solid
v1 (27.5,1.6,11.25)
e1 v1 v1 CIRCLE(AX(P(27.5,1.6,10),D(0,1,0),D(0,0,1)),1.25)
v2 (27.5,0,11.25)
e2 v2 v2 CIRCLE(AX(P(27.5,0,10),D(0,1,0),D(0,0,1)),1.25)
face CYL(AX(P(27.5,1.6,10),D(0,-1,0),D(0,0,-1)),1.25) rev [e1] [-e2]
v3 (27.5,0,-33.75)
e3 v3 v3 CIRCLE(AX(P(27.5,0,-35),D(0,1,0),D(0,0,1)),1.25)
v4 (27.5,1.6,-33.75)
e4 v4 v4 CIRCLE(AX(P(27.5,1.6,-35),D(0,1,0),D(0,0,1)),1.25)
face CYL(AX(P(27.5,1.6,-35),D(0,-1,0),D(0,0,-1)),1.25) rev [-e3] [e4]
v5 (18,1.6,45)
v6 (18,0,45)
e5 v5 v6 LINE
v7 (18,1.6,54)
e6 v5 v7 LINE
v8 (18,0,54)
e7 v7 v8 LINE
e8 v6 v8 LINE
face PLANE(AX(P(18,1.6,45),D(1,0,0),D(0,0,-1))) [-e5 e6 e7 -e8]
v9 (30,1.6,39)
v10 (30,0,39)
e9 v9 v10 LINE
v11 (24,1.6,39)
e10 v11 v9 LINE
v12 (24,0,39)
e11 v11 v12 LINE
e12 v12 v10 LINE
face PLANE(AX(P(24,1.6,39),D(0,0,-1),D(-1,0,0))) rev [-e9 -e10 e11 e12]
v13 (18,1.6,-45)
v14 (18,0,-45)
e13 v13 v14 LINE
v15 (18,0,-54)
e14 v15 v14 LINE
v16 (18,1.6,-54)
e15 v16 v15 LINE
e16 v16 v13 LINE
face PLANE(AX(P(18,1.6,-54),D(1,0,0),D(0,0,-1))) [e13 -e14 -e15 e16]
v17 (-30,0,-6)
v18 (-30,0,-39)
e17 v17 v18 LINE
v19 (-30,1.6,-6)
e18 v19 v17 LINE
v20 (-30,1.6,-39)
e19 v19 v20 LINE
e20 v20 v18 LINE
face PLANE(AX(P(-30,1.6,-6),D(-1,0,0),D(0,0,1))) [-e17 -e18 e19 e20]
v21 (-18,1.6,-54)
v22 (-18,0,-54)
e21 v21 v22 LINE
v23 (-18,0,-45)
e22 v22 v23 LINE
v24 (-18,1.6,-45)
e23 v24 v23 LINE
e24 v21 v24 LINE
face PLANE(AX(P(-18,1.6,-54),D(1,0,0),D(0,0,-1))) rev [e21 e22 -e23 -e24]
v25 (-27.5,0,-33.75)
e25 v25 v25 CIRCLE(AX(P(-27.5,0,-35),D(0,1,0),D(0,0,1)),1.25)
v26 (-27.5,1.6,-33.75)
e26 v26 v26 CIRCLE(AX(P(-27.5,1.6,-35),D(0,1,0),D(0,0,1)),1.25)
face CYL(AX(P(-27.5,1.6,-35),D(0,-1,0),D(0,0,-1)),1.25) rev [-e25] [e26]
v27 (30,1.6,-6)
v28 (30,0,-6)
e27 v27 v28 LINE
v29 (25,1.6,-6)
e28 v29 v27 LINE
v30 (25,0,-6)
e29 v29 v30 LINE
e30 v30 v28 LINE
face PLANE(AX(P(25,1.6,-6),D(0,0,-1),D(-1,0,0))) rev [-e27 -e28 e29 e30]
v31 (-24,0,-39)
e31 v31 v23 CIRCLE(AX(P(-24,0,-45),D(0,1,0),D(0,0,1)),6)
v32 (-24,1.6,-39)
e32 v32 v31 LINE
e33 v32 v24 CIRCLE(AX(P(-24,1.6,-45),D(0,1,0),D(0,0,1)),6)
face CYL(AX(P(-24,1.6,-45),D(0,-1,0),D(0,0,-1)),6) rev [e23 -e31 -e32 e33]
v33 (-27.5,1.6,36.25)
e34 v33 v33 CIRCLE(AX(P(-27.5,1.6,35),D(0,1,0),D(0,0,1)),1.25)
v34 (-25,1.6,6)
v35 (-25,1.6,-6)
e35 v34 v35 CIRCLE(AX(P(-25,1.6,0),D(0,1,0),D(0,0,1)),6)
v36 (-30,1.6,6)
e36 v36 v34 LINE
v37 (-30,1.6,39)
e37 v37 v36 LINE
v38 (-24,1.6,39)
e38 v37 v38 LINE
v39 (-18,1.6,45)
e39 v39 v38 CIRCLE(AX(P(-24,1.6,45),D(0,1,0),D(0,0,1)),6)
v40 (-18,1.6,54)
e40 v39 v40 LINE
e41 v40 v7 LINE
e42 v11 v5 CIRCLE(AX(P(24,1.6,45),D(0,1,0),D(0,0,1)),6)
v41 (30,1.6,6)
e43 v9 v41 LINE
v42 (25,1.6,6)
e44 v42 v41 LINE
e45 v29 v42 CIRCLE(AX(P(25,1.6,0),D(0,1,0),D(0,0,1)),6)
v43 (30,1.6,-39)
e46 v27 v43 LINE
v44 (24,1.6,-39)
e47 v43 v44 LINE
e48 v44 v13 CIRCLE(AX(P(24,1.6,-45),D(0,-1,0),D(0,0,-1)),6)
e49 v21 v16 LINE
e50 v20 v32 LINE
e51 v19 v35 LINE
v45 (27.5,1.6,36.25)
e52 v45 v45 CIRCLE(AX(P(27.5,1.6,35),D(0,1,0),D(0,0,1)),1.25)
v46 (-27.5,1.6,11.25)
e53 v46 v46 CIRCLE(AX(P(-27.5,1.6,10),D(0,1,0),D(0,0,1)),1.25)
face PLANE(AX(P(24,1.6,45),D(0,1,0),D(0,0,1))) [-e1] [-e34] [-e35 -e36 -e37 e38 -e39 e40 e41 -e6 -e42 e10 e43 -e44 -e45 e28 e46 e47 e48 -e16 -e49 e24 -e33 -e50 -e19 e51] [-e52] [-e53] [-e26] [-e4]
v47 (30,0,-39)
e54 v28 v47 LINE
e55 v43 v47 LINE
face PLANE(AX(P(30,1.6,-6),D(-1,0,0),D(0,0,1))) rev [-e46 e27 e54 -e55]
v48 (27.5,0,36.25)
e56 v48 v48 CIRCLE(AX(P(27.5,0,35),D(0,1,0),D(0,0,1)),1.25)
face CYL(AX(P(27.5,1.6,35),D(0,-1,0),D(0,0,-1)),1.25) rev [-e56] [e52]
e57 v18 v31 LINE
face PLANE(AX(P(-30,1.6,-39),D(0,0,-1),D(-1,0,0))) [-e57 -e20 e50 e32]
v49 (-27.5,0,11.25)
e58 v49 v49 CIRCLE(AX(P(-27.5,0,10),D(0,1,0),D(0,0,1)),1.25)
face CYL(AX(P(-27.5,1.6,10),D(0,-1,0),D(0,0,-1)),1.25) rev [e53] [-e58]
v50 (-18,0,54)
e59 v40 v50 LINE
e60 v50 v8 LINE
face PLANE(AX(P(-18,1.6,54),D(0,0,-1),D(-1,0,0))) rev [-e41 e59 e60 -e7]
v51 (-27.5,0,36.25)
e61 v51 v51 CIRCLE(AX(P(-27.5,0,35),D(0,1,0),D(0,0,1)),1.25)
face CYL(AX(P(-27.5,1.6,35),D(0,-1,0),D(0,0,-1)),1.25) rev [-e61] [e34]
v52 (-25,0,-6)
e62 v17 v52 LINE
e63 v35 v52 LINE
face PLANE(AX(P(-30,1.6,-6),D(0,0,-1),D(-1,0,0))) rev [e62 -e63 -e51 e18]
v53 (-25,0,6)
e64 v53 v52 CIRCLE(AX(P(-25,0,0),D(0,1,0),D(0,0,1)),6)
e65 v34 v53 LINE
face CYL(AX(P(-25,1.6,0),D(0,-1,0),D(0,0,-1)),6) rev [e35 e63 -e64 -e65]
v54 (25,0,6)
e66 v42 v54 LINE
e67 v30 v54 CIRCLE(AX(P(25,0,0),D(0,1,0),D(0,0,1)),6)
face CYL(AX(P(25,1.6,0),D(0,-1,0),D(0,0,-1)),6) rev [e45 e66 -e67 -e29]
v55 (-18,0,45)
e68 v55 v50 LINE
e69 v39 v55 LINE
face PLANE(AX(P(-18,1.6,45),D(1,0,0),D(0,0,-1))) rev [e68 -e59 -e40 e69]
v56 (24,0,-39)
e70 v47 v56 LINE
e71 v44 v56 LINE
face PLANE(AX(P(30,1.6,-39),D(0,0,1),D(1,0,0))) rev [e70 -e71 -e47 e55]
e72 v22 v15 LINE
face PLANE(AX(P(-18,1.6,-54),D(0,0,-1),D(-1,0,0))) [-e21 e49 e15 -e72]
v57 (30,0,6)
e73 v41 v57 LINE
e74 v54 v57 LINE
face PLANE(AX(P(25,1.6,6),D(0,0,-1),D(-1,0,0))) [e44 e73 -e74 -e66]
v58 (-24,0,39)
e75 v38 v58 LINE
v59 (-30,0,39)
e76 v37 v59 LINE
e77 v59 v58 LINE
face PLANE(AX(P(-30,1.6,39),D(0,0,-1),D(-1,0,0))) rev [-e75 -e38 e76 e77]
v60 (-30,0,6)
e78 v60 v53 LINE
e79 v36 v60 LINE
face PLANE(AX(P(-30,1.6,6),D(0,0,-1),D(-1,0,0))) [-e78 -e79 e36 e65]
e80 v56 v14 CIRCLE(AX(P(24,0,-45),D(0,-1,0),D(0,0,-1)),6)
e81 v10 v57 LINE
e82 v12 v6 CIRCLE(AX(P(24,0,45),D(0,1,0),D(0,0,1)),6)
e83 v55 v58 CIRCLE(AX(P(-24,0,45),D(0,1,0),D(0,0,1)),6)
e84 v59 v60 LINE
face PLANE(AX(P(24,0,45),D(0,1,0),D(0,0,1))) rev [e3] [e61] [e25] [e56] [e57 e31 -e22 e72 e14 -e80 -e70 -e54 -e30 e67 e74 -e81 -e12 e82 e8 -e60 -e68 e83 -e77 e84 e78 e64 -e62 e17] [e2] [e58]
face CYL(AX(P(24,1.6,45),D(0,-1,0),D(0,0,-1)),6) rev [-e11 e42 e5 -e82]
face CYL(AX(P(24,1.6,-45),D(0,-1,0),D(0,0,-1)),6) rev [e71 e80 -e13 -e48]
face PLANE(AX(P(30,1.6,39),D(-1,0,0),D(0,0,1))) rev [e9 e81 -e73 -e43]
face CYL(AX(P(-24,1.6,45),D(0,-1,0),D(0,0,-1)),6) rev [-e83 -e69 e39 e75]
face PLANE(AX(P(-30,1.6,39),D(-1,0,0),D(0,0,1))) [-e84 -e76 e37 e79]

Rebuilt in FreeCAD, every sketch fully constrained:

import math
import FreeCAD as App
import Part
import Sketcher
Q = App.Units.Quantity

doc = App.newDocument("Part")
params = doc.addObject("Spreadsheet::Sheet", "Params")
for row, (alias, value) in enumerate([
    ("sketch1_radius", "6 mm"),
    ("sketch1_width", "6 mm"),
    ("sketch1_width2", "36 mm"),
    ("sketch1_width3", "5 mm"),
    ("sketch1_height", "33 mm"),
    ("pad1_length", "1.6 mm"),
    ("sketch2_diameter", "2.5 mm"),
    ("pocket1_length", "1.6 mm"),
], start=1):
    params.set(f"A{row}", alias)
    params.set(f"B{row}", "=" + value)
    params.setAlias(f"B{row}", alias)

body = doc.addObject("PartDesign::Body", "Body")

# Sketch on XZ plane
sketch1 = doc.addObject("Sketcher::SketchObject", "Sketch")
body.addObject(sketch1)
sketch1.AttachmentSupport = (doc.XZ_Plane, [""])
sketch1.MapMode = "FlatFace"
sketch1.addGeometry([
    Part.LineSegment(App.Vector(-30, 6, 0), App.Vector(-30, 39, 0)),  # 0
    Part.LineSegment(App.Vector(-30, 39, 0), App.Vector(-24, 39, 0)),  # 1
    Part.ArcOfCircle(Part.Circle(App.Vector(-24, 45, 0), App.Vector(0, 0, 1), 6), math.radians(-90), math.radians(0)),  # 2
    Part.LineSegment(App.Vector(-18, 45, 0), App.Vector(-18, 54, 0)),  # 3
    Part.LineSegment(App.Vector(-18, 54, 0), App.Vector(18, 54, 0)),  # 4
    Part.LineSegment(App.Vector(18, 54, 0), App.Vector(18, 45, 0)),  # 5
    Part.ArcOfCircle(Part.Circle(App.Vector(24, 45, 0), App.Vector(0, 0, 1), 6), math.radians(180), math.radians(270)),  # 6
    Part.LineSegment(App.Vector(24, 39, 0), App.Vector(30, 39, 0)),  # 7
    Part.LineSegment(App.Vector(30, 39, 0), App.Vector(30, 6, 0)),  # 8
    Part.LineSegment(App.Vector(30, 6, 0), App.Vector(25, 6, 0)),  # 9
    Part.ArcOfCircle(Part.Circle(App.Vector(25, 0, 0), App.Vector(0, 0, 1), 6), math.radians(90), math.radians(270)),  # 10
    Part.LineSegment(App.Vector(25, -6, 0), App.Vector(30, -6, 0)),  # 11
    Part.LineSegment(App.Vector(30, -6, 0), App.Vector(30, -39, 0)),  # 12
    Part.LineSegment(App.Vector(30, -39, 0), App.Vector(24, -39, 0)),  # 13
    Part.ArcOfCircle(Part.Circle(App.Vector(24, -45, 0), App.Vector(0, 0, 1), 6), math.radians(90), math.radians(180)),  # 14
    Part.LineSegment(App.Vector(18, -45, 0), App.Vector(18, -54, 0)),  # 15
    Part.LineSegment(App.Vector(18, -54, 0), App.Vector(-18, -54, 0)),  # 16
    Part.LineSegment(App.Vector(-18, -54, 0), App.Vector(-18, -45, 0)),  # 17
    Part.ArcOfCircle(Part.Circle(App.Vector(-24, -45, 0), App.Vector(0, 0, 1), 6), math.radians(0), math.radians(90)),  # 18
    Part.LineSegment(App.Vector(-24, -39, 0), App.Vector(-30, -39, 0)),  # 19
    Part.LineSegment(App.Vector(-30, -39, 0), App.Vector(-30, -6, 0)),  # 20
    Part.LineSegment(App.Vector(-30, -6, 0), App.Vector(-25, -6, 0)),  # 21
    Part.ArcOfCircle(Part.Circle(App.Vector(-25, 0, 0), App.Vector(0, 0, 1), 6), math.radians(-90), math.radians(90)),  # 22
    Part.LineSegment(App.Vector(-25, 6, 0), App.Vector(-30, 6, 0)),  # 23
], False)
sketch1.addConstraint([
    Sketcher.Constraint("Coincident", 0, 2, 1, 1),
    Sketcher.Constraint("Tangent", 1, 2, 2, 1),
    Sketcher.Constraint("Tangent", 2, 2, 3, 1),
    Sketcher.Constraint("Coincident", 3, 2, 4, 1),
    Sketcher.Constraint("Coincident", 4, 2, 5, 1),
    Sketcher.Constraint("Tangent", 5, 2, 6, 1),
    Sketcher.Constraint("Tangent", 6, 2, 7, 1),
    Sketcher.Constraint("Coincident", 7, 2, 8, 1),
    Sketcher.Constraint("Coincident", 8, 2, 9, 1),
    Sketcher.Constraint("Tangent", 9, 2, 10, 1),
    Sketcher.Constraint("Tangent", 10, 2, 11, 1),
    Sketcher.Constraint("Coincident", 11, 2, 12, 1),
    Sketcher.Constraint("Coincident", 12, 2, 13, 1),
    Sketcher.Constraint("Tangent", 13, 2, 14, 1),
    Sketcher.Constraint("Tangent", 14, 2, 15, 1),
    Sketcher.Constraint("Coincident", 15, 2, 16, 1),
    Sketcher.Constraint("Coincident", 16, 2, 17, 1),
    Sketcher.Constraint("Tangent", 17, 2, 18, 1),
    Sketcher.Constraint("Tangent", 18, 2, 19, 1),
    Sketcher.Constraint("Coincident", 19, 2, 20, 1),
    Sketcher.Constraint("Coincident", 20, 2, 21, 1),
    Sketcher.Constraint("Tangent", 21, 2, 22, 1),
    Sketcher.Constraint("Tangent", 22, 2, 23, 1),
    Sketcher.Constraint("Coincident", 23, 2, 0, 1),
    Sketcher.Constraint("Vertical", 0),
    Sketcher.Constraint("Horizontal", 1),
    Sketcher.Constraint("Vertical", 3),
    Sketcher.Constraint("Horizontal", 4),
    Sketcher.Constraint("Vertical", 5),
    Sketcher.Constraint("Horizontal", 7),
    Sketcher.Constraint("Vertical", 8),
    Sketcher.Constraint("Horizontal", 9),
    Sketcher.Constraint("Horizontal", 11),
    Sketcher.Constraint("Vertical", 12),
    Sketcher.Constraint("Horizontal", 13),
    Sketcher.Constraint("Vertical", 15),
    Sketcher.Constraint("Horizontal", 16),
    Sketcher.Constraint("Vertical", 17),
    Sketcher.Constraint("Horizontal", 19),
    Sketcher.Constraint("Vertical", 20),
    Sketcher.Constraint("Horizontal", 21),
    Sketcher.Constraint("Horizontal", 23),
    Sketcher.Constraint("Equal", 2, 6),
    Sketcher.Constraint("Equal", 6, 10),
    Sketcher.Constraint("Equal", 10, 14),
    Sketcher.Constraint("Equal", 14, 18),
    Sketcher.Constraint("Equal", 18, 22),
    Sketcher.Constraint("Symmetric", 2, 3, 14, 3, -1, 1),
    Sketcher.Constraint("Symmetric", 6, 3, 18, 3, -1, 1),
    Sketcher.Constraint("Symmetric", 10, 3, 22, 3, -1, 1),
    Sketcher.Constraint("Symmetric", 2, 3, 6, 3, -2),
    Sketcher.Constraint("Symmetric", 11, 2, 20, 2, -2),
    Sketcher.Constraint("Vertical", 8, 2, 11, 2),
    Sketcher.Constraint("Vertical", 0, 2, 19, 2),
    Sketcher.Constraint("Equal", 5, 15),
    Sketcher.Constraint("Radius", 2, Q("6 mm")),
    Sketcher.Constraint("DistanceX", 1, 1, 1, 2, Q("6 mm")),
    Sketcher.Constraint("DistanceX", 4, 1, 4, 2, Q("36 mm")),
    Sketcher.Constraint("DistanceX", 9, 2, 9, 1, Q("5 mm")),
    Sketcher.Constraint("DistanceY", 0, 1, 0, 2, Q("33 mm")),
    Sketcher.Constraint("DistanceY", 3, 1, 3, 2, Q("9 mm")),
])
sketch1.setExpression("Constraints[55]", "Params.sketch1_radius")
sketch1.setExpression("Constraints[56]", "Params.sketch1_width")
sketch1.setExpression("Constraints[57]", "Params.sketch1_width2")
sketch1.setExpression("Constraints[58]", "Params.sketch1_width3")
sketch1.setExpression("Constraints[59]", "Params.sketch1_height")
pad1 = doc.addObject("PartDesign::Pad", "Pad")
body.addObject(pad1)
pad1.Profile = sketch1
pad1.setExpression("Length", "Params.pad1_length")
pad1.Reversed = True

# Sketch on XZ plane
sketch2 = doc.addObject("Sketcher::SketchObject", "Sketch001")
body.addObject(sketch2)
sketch2.AttachmentSupport = (doc.XZ_Plane, [""])
sketch2.MapMode = "FlatFace"
sketch2.addGeometry([
    Part.Circle(App.Vector(-27.5, 35, 0), App.Vector(0, 0, 1), 1.25),  # 0
    Part.Circle(App.Vector(-27.5, 10, 0), App.Vector(0, 0, 1), 1.25),  # 1
    Part.Circle(App.Vector(27.5, 10, 0), App.Vector(0, 0, 1), 1.25),  # 2
    Part.Circle(App.Vector(27.5, 35, 0), App.Vector(0, 0, 1), 1.25),  # 3
    Part.Circle(App.Vector(27.5, -35, 0), App.Vector(0, 0, 1), 1.25),  # 4
    Part.Circle(App.Vector(-27.5, -35, 0), App.Vector(0, 0, 1), 1.25),  # 5
], False)
sketch2.addConstraint([
    Sketcher.Constraint("Equal", 0, 1),
    Sketcher.Constraint("Equal", 1, 2),
    Sketcher.Constraint("Equal", 2, 3),
    Sketcher.Constraint("Equal", 3, 4),
    Sketcher.Constraint("Equal", 4, 5),
    Sketcher.Constraint("Symmetric", 0, 3, 4, 3, -1, 1),
    Sketcher.Constraint("Symmetric", 3, 3, 5, 3, -1, 1),
    Sketcher.Constraint("Symmetric", 1, 3, 2, 3, -2),
    Sketcher.Constraint("Symmetric", 0, 3, 3, 3, -2),
    Sketcher.Constraint("Vertical", 0, 3, 1, 3),
    Sketcher.Constraint("Diameter", 0, Q("2.5 mm")),
    Sketcher.Constraint("DistanceY", -1, 1, 0, 3, Q("35 mm")),
    Sketcher.Constraint("DistanceY", -1, 1, 1, 3, Q("10 mm")),
    Sketcher.Constraint("DistanceX", 1, 3, 2, 3, Q("55 mm")),
])
sketch2.setExpression("Constraints[10]", "Params.sketch2_diameter")
pocket1 = doc.addObject("PartDesign::Pocket", "Pocket")
body.addObject(pocket1)
pocket1.Profile = sketch2
pocket1.setExpression("Length", "Params.pocket1_length")

doc.recompute()
